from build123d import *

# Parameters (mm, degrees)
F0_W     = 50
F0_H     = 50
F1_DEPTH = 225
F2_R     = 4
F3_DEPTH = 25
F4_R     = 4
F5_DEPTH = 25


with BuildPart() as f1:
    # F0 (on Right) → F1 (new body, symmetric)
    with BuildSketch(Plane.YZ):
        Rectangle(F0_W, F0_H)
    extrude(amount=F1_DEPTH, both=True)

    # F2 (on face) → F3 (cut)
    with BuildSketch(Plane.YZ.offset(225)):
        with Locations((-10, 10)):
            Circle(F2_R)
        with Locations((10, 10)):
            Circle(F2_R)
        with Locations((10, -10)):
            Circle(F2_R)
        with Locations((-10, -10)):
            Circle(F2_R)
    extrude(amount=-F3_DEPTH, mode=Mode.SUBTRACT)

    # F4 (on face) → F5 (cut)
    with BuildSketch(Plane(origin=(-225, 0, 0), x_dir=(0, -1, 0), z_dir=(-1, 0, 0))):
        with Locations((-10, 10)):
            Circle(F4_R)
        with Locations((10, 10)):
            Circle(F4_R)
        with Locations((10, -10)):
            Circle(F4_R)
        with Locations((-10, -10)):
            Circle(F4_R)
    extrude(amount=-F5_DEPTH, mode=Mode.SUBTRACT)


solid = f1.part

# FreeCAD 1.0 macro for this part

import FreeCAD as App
import Part
import Sketcher

V = App.Vector
Q = App.Units.Quantity

doc = App.newDocument("Part")
body = doc.addObject("PartDesign::Body", "Body")

# Sketch on YZ plane
sketch1 = doc.addObject("Sketcher::SketchObject", "Sketch")
body.addObject(sketch1)
sketch1.AttachmentSupport = (doc.YZ_Plane, [""])
sketch1.MapMode = "FlatFace"
sketch1.addGeometry(Part.LineSegment(V(-25, 25, 0), V(-25, -25, 0)), False)
sketch1.addGeometry(Part.LineSegment(V(-25, -25, 0), V(25, -25, 0)), False)
sketch1.addGeometry(Part.LineSegment(V(25, -25, 0), V(25, 25, 0)), False)
sketch1.addGeometry(Part.LineSegment(V(25, 25, 0), V(-25, 25, 0)), False)
sketch1.addConstraint(Sketcher.Constraint("Coincident", 0, 2, 1, 1))
sketch1.addConstraint(Sketcher.Constraint("Coincident", 1, 2, 2, 1))
sketch1.addConstraint(Sketcher.Constraint("Coincident", 2, 2, 3, 1))
sketch1.addConstraint(Sketcher.Constraint("Coincident", 3, 2, 0, 1))
sketch1.addConstraint(Sketcher.Constraint("Vertical", 0))
sketch1.addConstraint(Sketcher.Constraint("Horizontal", 1))
sketch1.addConstraint(Sketcher.Constraint("Vertical", 2))
sketch1.addConstraint(Sketcher.Constraint("Horizontal", 3))
sketch1.addConstraint(Sketcher.Constraint("Symmetric", 0, 2, 2, 2, -1, 1))
sketch1.addConstraint(Sketcher.Constraint("Equal", 3, 0))
sketch1.addConstraint(Sketcher.Constraint("DistanceX", 1, 1, 1, 2, Q("50 mm")))
pad1 = doc.addObject("PartDesign::Pad", "Pad")
body.addObject(pad1)
pad1.Profile = sketch1
pad1.Length = 450
pad1.Midplane = True

# Sketch on YZ plane
sketch2 = doc.addObject("Sketcher::SketchObject", "Sketch001")
body.addObject(sketch2)
sketch2.AttachmentSupport = (doc.YZ_Plane, [""])
sketch2.MapMode = "FlatFace"
sketch2.AttachmentOffset = App.Placement(V(0, 0, 225), App.Rotation())
sketch2.addGeometry(Part.Circle(V(-10, 10, 0), V(0, 0, 1), 4), False)
sketch2.addGeometry(Part.Circle(V(10, 10, 0), V(0, 0, 1), 4), False)
sketch2.addGeometry(Part.Circle(V(10, -10, 0), V(0, 0, 1), 4), False)
sketch2.addGeometry(Part.Circle(V(-10, -10, 0), V(0, 0, 1), 4), False)
sketch2.addConstraint(Sketcher.Constraint("Equal", 0, 1))
sketch2.addConstraint(Sketcher.Constraint("Equal", 1, 2))
sketch2.addConstraint(Sketcher.Constraint("Equal", 2, 3))
sketch2.addConstraint(Sketcher.Constraint("Symmetric", 0, 3, 2, 3, -1, 1))
sketch2.addConstraint(Sketcher.Constraint("Symmetric", 1, 3, 3, 3, -1, 1))
sketch2.addConstraint(Sketcher.Constraint("Symmetric", 0, 3, 1, 3, -2))
sketch2.addConstraint(Sketcher.Constraint("Diameter", 0, Q("8 mm")))
sketch2.addConstraint(Sketcher.Constraint("DistanceX", 0, 3, -1, 1, Q("10 mm")))
sketch2.addConstraint(Sketcher.Constraint("DistanceY", -1, 1, 0, 3, Q("10 mm")))
pocket1 = doc.addObject("PartDesign::Pocket", "Pocket")
body.addObject(pocket1)
pocket1.Profile = sketch2
pocket1.Length = 25

# Sketch on YZ plane
sketch3 = doc.addObject("Sketcher::SketchObject", "Sketch002")
body.addObject(sketch3)
sketch3.AttachmentSupport = (doc.YZ_Plane, [""])
sketch3.MapMode = "FlatFace"
sketch3.AttachmentOffset = App.Placement(V(0, 0, -225), App.Rotation())
sketch3.addGeometry(Part.Circle(V(10, 10, 0), V(0, 0, 1), 4), False)
sketch3.addGeometry(Part.Circle(V(-10, 10, 0), V(0, 0, 1), 4), False)
sketch3.addGeometry(Part.Circle(V(-10, -10, 0), V(0, 0, 1), 4), False)
sketch3.addGeometry(Part.Circle(V(10, -10, 0), V(0, 0, 1), 4), False)
sketch3.addConstraint(Sketcher.Constraint("Equal", 0, 1))
sketch3.addConstraint(Sketcher.Constraint("Equal", 1, 2))
sketch3.addConstraint(Sketcher.Constraint("Equal", 2, 3))
sketch3.addConstraint(Sketcher.Constraint("Symmetric", 0, 3, 2, 3, -1, 1))
sketch3.addConstraint(Sketcher.Constraint("Symmetric", 1, 3, 3, 3, -1, 1))
sketch3.addConstraint(Sketcher.Constraint("Symmetric", 0, 3, 1, 3, -2))
sketch3.addConstraint(Sketcher.Constraint("Diameter", 0, Q("8 mm")))
sketch3.addConstraint(Sketcher.Constraint("DistanceX", -1, 1, 0, 3, Q("10 mm")))
sketch3.addConstraint(Sketcher.Constraint("DistanceY", -1, 1, 0, 3, Q("10 mm")))
pocket2 = doc.addObject("PartDesign::Pocket", "Pocket001")
body.addObject(pocket2)
pocket2.Profile = sketch3
pocket2.Length = 25
pocket2.Reversed = True

doc.recompute()
